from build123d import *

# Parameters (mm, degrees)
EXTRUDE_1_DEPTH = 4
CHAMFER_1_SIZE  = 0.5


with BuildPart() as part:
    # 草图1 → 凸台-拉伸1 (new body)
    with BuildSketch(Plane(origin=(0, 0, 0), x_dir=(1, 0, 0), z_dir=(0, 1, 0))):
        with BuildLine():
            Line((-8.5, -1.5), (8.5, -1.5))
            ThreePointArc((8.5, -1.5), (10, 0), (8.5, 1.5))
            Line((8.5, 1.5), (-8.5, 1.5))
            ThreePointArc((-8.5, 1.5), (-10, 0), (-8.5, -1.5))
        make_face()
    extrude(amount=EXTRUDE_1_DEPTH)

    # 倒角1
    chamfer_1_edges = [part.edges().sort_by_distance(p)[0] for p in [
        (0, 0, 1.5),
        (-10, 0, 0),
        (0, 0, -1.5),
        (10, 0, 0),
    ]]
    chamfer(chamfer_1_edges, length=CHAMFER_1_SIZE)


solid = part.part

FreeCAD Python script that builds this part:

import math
import FreeCAD as App
import Part
import Sketcher
from FreeCAD import Vector


def edges_at(feature, points):
    """Names of the edges that pass closest to the given points."""
    edges = feature.Shape.Edges
    near = lambda p: min(range(len(edges)), key=lambda i: edges[i].distToShape(Part.Vertex(*p))[0])
    return sorted({f"Edge{near(p) + 1}" for p in points})

doc = App.newDocument("Part")
body = doc.addObject("PartDesign::Body", "Body")

# Sketch on XZ plane
sketch1 = doc.addObject("Sketcher::SketchObject", "Sketch")
body.addObject(sketch1)
sketch1.AttachmentSupport = (doc.XZ_Plane, [""])
sketch1.MapMode = "FlatFace"
sketch1.addGeometry(Part.LineSegment(Vector(-8.5, 1.5, 0), Vector(8.5, 1.5, 0)), False)
sketch1.addGeometry(Part.ArcOfCircle(Part.Circle(Vector(8.5, 0, 0), Vector(0, 0, 1), 1.5), math.radians(-90), math.radians(90)), False)
sketch1.addGeometry(Part.LineSegment(Vector(8.5, -1.5, 0), Vector(-8.5, -1.5, 0)), False)
sketch1.addGeometry(Part.ArcOfCircle(Part.Circle(Vector(-8.5, 0, 0), Vector(0, 0, 1), 1.5), math.radians(90), math.radians(270)), False)
sketch1.addConstraint(Sketcher.Constraint("Tangent", 0, 2, 1, 2))
sketch1.addConstraint(Sketcher.Constraint("Tangent", 1, 1, 2, 1))
sketch1.addConstraint(Sketcher.Constraint("Tangent", 2, 2, 3, 2))
sketch1.addConstraint(Sketcher.Constraint("Tangent", 3, 1, 0, 1))
sketch1.addConstraint(Sketcher.Constraint("Horizontal", 0))
sketch1.addConstraint(Sketcher.Constraint("Horizontal", 2))
sketch1.addConstraint(Sketcher.Constraint("Symmetric", 1, 3, 3, 3, -1, 1))
sketch1.addConstraint(Sketcher.Constraint("Radius", 1, 1.5))
sketch1.addConstraint(Sketcher.Constraint("DistanceX", 0, 1, 0, 2, 17.0))
pad1 = doc.addObject("PartDesign::Pad", "Pad")
body.addObject(pad1)
pad1.Profile = sketch1
pad1.Length = 4
pad1.Reversed = True
doc.recompute()

chamfer = doc.addObject("PartDesign::Chamfer", "Chamfer")
body.addObject(chamfer)
chamfer.Base = (pad1, edges_at(pad1, [
    (0, 0, 1.5),
    (-10, 0, 0),
    (0, 0, -1.5),
    (10, 0, 0),
]))
chamfer.Size = 0.5

doc.recompute()
